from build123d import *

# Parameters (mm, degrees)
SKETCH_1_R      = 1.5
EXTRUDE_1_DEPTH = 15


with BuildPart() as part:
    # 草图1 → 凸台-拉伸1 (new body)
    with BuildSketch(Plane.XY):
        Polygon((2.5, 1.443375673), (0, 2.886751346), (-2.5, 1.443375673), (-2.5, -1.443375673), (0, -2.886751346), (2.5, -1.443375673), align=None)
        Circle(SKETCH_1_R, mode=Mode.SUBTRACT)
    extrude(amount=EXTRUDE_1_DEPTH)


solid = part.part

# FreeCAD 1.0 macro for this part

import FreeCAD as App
import Part
import Sketcher
Q = App.Units.Quantity


def add_polygon(sketch, points):
    """Adds a closed chain of lines whose ends are joined by coincident constraints."""
    first, n = sketch.GeometryCount, len(points)
    for a, b in zip(points, points[1:] + points[:1]):
        sketch.addGeometry(Part.LineSegment(App.Vector(*a, 0), App.Vector(*b, 0)), False)
    for i in range(n):
        sketch.addConstraint(Sketcher.Constraint("Coincident", first + i, 2, first + (i + 1) % n, 1))

doc = App.newDocument("Part")
body = doc.addObject("PartDesign::Body", "Body")

# Sketch on XY plane
sketch1 = doc.addObject("Sketcher::SketchObject", "Sketch")
body.addObject(sketch1)
sketch1.AttachmentSupport = (doc.XY_Plane, [""])
sketch1.MapMode = "FlatFace"
add_polygon(sketch1, [(2.5, 1.4), (0, 2.9), (-2.5, 1.4), (-2.5, -1.4), (0, -2.9), (2.5, -1.4)])  # lines 0-5
sketch1.addGeometry(Part.Circle(App.Vector(0, 0, 0), App.Vector(0, 0, 1), 1.5), False)  # 6
sketch1.addConstraint(Sketcher.Constraint("Vertical", 2))
sketch1.addConstraint(Sketcher.Constraint("Vertical", 5))
sketch1.addConstraint(Sketcher.Constraint("Coincident", 6, 3, -1, 1))
sketch1.addConstraint(Sketcher.Constraint("Symmetric", 0, 2, 3, 2, -1, 1))
sketch1.addConstraint(Sketcher.Constraint("Symmetric", 1, 2, 4, 2, -1, 1))
sketch1.addConstraint(Sketcher.Constraint("PointOnObject", 0, 2, -2))
sketch1.addConstraint(Sketcher.Constraint("Parallel", 0, 3))
sketch1.addConstraint(Sketcher.Constraint("Horizontal", 2, 2, 4, 2))
sketch1.addConstraint(Sketcher.Constraint("Diameter", 6, Q("3 mm")))
sketch1.addConstraint(Sketcher.Constraint("Angle", 0, Q("150 deg")))
sketch1.addConstraint(Sketcher.Constraint("DistanceX", 2, 2, 4, 2, Q("5 mm")))
sketch1.addConstraint(Sketcher.Constraint("DistanceY", 2, 2, 2, 1, Q("2.886751 mm")))
pad1 = doc.addObject("PartDesign::Pad", "Pad")
body.addObject(pad1)
pad1.Profile = sketch1
pad1.Length = 15

doc.recompute()
